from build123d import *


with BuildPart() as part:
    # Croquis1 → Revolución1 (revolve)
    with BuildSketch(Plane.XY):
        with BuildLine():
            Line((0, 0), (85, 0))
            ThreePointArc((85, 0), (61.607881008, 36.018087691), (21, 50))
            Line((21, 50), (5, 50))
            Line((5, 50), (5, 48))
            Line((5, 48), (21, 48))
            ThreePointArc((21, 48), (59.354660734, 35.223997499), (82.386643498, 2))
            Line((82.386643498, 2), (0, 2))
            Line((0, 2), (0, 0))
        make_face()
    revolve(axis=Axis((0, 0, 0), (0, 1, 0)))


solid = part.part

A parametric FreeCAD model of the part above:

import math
import FreeCAD as App
import Part
import Sketcher

doc = App.newDocument("Part")
params = doc.addObject("Spreadsheet::Sheet", "Params")
for row, (alias, value) in enumerate([
    ("sketch1_width", "85 mm"),
    ("sketch1_width2", "16 mm"),
    ("sketch1_height", "2 mm"),
    ("sketch1_radius", "65.96 mm"),
    ("revolution_angle", "360 deg"),
], start=1):
    params.set(f"A{row}", alias)
    params.set(f"B{row}", "=" + value)
    params.setAlias(f"B{row}", alias)

body = doc.addObject("PartDesign::Body", "Body")

# Sketch on XY plane
sketch1 = body.newObject("Sketcher::SketchObject", "Sketch")
sketch1.AttachmentSupport = (doc.getObject("XY_Plane"), [""])
sketch1.MapMode = "FlatFace"
sketch1.addGeometry([
    Part.LineSegment(App.Vector(0, 0, 0), App.Vector(85, 0, 0)),  # 0
    Part.ArcOfCircle(Part.Circle(App.Vector(21, -15.96, 0), App.Vector(0, 0, 1), 65.96), math.radians(14.002535), math.radians(90)),  # 1
    Part.LineSegment(App.Vector(21, 50, 0), App.Vector(5, 50, 0)),  # 2
    Part.LineSegment(App.Vector(5, 50, 0), App.Vector(5, 48, 0)),  # 3
    Part.LineSegment(App.Vector(5, 48, 0), App.Vector(21, 48, 0)),  # 4
    Part.ArcOfCircle(Part.Circle(App.Vector(21, -15.96, 0), App.Vector(0, 0, 1), 63.96), math.radians(16.307987), math.radians(90)),  # 5
    Part.LineSegment(App.Vector(82.386643, 2, 0), App.Vector(0, 2, 0)),  # 6
    Part.LineSegment(App.Vector(0, 2, 0), App.Vector(0, 0, 0)),  # 7
], False)
sketch1.addConstraint([
    Sketcher.Constraint("Coincident", 0, 2, 1, 1),
    Sketcher.Constraint("Tangent", 1, 2, 2, 1),
    Sketcher.Constraint("Coincident", 2, 2, 3, 1),
    Sketcher.Constraint("Coincident", 3, 2, 4, 1),
    Sketcher.Constraint("Tangent", 4, 2, 5, 2),
    Sketcher.Constraint("Coincident", 5, 1, 6, 1),
    Sketcher.Constraint("Coincident", 6, 2, 7, 1),
    Sketcher.Constraint("Coincident", 7, 2, 0, 1),
    Sketcher.Constraint("Horizontal", 0),
    Sketcher.Constraint("Horizontal", 2),
    Sketcher.Constraint("Vertical", 3),
    Sketcher.Constraint("Horizontal", 4),
    Sketcher.Constraint("Horizontal", 6),
    Sketcher.Constraint("Vertical", 7),
    Sketcher.Constraint("Coincident", 7, 2, -1, 1),
    Sketcher.Constraint("Coincident", 5, 3, 1, 3),
    Sketcher.Constraint("Equal", 3, 7),
    Sketcher.Constraint("DistanceX", 0, 1, 0, 2, 85.0),
    Sketcher.Constraint("DistanceX", 2, 2, 2, 1, 16.0),
    Sketcher.Constraint("DistanceY", 3, 2, 3, 1, 2.0),
    Sketcher.Constraint("Radius", 1, 65.96),
    Sketcher.Constraint("DistanceX", -1, 1, 1, 3, 21.0),
])
sketch1.setExpression("Constraints[17]", "Params.sketch1_width")
sketch1.setExpression("Constraints[18]", "Params.sketch1_width2")
sketch1.setExpression("Constraints[19]", "Params.sketch1_height")
sketch1.setExpression("Constraints[20]", "Params.sketch1_radius")
revolution = body.newObject("PartDesign::Revolution", "Revolution")
revolution.Profile = sketch1
revolution.ReferenceAxis = (sketch1, ["V_Axis"])
revolution.setExpression("Angle", "Params.revolution_angle")

doc.recompute()
